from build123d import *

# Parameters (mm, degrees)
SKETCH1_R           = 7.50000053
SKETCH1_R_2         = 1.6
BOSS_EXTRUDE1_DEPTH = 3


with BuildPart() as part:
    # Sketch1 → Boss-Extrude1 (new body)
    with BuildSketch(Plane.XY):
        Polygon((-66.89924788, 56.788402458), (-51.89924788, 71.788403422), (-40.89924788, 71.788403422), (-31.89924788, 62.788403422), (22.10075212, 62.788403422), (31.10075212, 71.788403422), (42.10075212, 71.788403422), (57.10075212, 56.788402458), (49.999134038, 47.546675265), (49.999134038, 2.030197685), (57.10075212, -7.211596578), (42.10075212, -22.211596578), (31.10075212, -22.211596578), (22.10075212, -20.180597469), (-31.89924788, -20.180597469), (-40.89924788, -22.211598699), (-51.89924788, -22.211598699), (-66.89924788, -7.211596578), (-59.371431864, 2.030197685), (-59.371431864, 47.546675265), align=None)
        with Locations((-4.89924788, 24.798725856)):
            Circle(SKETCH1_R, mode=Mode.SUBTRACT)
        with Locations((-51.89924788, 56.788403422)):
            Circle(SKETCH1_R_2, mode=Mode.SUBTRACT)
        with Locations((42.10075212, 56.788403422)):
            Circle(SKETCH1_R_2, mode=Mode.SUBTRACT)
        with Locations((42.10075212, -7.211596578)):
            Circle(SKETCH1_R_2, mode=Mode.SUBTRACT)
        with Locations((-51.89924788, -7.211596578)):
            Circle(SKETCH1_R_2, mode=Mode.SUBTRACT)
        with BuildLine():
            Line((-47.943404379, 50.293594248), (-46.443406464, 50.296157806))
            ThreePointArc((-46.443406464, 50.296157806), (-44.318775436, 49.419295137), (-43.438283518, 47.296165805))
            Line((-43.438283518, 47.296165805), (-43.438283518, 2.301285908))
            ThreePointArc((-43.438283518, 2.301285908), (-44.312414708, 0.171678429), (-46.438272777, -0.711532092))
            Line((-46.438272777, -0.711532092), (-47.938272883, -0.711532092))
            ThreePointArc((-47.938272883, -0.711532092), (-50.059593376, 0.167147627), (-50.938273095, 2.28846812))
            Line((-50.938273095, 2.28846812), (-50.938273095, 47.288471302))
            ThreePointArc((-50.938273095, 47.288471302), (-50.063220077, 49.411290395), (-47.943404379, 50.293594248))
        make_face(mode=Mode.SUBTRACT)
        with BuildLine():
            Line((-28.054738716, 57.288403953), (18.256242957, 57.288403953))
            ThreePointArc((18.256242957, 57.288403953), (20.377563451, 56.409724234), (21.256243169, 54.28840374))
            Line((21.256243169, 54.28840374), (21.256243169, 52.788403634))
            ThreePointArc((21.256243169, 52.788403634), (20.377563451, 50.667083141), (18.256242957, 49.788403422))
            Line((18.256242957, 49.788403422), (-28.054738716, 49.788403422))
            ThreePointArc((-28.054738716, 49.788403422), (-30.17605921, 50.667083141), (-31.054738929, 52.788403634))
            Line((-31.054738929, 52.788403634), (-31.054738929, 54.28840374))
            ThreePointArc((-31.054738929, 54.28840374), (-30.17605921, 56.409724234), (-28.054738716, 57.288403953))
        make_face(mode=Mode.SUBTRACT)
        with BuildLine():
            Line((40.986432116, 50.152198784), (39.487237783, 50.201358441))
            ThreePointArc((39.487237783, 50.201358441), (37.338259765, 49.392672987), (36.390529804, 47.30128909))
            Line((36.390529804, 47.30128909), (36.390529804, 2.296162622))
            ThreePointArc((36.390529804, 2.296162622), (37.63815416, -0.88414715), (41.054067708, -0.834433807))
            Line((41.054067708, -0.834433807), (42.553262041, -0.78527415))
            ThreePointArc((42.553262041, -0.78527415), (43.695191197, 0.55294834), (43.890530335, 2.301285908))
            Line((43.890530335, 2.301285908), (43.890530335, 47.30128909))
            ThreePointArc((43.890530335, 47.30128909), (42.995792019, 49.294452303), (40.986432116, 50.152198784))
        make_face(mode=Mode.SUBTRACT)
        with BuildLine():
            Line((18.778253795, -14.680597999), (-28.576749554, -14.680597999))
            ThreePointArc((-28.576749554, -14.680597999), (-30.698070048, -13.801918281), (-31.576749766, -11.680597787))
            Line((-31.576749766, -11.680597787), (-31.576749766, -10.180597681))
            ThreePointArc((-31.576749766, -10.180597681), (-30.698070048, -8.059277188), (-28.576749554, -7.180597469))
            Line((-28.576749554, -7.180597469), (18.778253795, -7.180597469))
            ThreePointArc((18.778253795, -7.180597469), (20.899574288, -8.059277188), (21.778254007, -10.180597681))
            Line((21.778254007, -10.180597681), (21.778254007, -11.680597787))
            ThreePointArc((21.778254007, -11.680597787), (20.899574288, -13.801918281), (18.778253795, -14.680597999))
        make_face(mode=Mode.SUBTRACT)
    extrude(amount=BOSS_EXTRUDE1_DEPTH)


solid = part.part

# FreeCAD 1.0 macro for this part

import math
import FreeCAD as App
import Part
import Sketcher

V = App.Vector


def add_polygon(sketch, points):
    """Adds a closed chain of lines whose ends are joined by coincident constraints."""
    first, n = sketch.GeometryCount, len(points)
    for a, b in zip(points, points[1:] + points[:1]):
        sketch.addGeometry(Part.LineSegment(App.Vector(*a, 0), App.Vector(*b, 0)), False)
    for i in range(n):
        sketch.addConstraint(Sketcher.Constraint("Coincident", first + i, 2, first + (i + 1) % n, 1))

doc = App.newDocument("Part")
params = doc.addObject("Spreadsheet::Sheet", "Params")
for row, (alias, value) in enumerate([
    ("sketch1_diameter", "15.000001 mm"),
    ("sketch1_radius", "3 mm"),
    ("sketch1_diameter2", "3.2 mm"),
    ("sketch1_width", "11 mm"),
    ("sketch1_width2", "54 mm"),
    ("pad1_length", "3 mm"),
], start=1):
    params.set(f"A{row}", alias)
    params.set(f"B{row}", "=" + value)
    params.setAlias(f"B{row}", alias)

body = doc.addObject("PartDesign::Body", "Body")

# Sketch on XY plane
sketch1 = body.newObject("Sketcher::SketchObject", "Sketch")
sketch1.AttachmentSupport = (doc.getObject("XY_Plane"), [""])
sketch1.MapMode = "FlatFace"
add_polygon(sketch1, [(-51.9, 71.8), (-66.9, 56.8), (-59.4, 47.5), (-59.4, 2), (-66.9, -7.2), (-51.9, -22.2), (-40.9, -22.2), (-31.9, -20.2), (22.1, -20.2), (31.1, -22.2), (42.1, -22.2), (57.1, -7.2), (50, 2), (50, 47.5), (57.1, 56.8), (42.1, 71.8), (31.1, 71.8), (22.1, 62.8), (-31.9, 62.8), (-40.9, 71.8)])  # lines 0-19
sketch1.addGeometry(Part.Circle(V(42.1, -7.2, 0), V(0, 0, 1), 1.6), False)  # 20
sketch1.addGeometry(Part.LineSegment(V(18.8, -14.7, 0), V(-28.6, -14.7, 0)), False)  # 21
sketch1.addGeometry(Part.ArcOfCircle(Part.Circle(V(-28.6, -11.7, 0), V(0, 0, 1), 3), math.radians(180), math.radians(270)), False)  # 22
sketch1.addGeometry(Part.LineSegment(V(-31.6, -11.7, 0), V(-31.6, -10.2, 0)), False)  # 23
sketch1.addGeometry(Part.ArcOfCircle(Part.Circle(V(-28.6, -10.2, 0), V(0, 0, 1), 3), math.radians(90), math.radians(180)), False)  # 24
sketch1.addGeometry(Part.LineSegment(V(-28.6, -7.2, 0), V(18.8, -7.2, 0)), False)  # 25
sketch1.addGeometry(Part.ArcOfCircle(Part.Circle(V(18.8, -10.2, 0), V(0, 0, 1), 3), math.radians(0), math.radians(90)), False)  # 26
sketch1.addGeometry(Part.LineSegment(V(21.8, -10.2, 0), V(21.8, -11.7, 0)), False)  # 27
sketch1.addGeometry(Part.ArcOfCircle(Part.Circle(V(18.8, -11.7, 0), V(0, 0, 1), 3), math.radians(-90), math.radians(0)), False)  # 28
sketch1.addGeometry(Part.Circle(V(-51.9, -7.2, 0), V(0, 0, 1), 1.6), False)  # 29
sketch1.addGeometry(Part.ArcOfCircle(Part.Circle(V(40.9, 47.2, 0), V(0, 0, 1), 3), math.radians(3), math.radians(88)), False)  # 30
sketch1.addGeometry(Part.LineSegment(V(43.9, 47.3, 0), V(43.9, 2.3, 0)), False)  # 31
sketch1.addGeometry(Part.ArcOfCircle(Part.Circle(V(40.9, 1.7, 0), V(0, 0, 1), 3), math.radians(-58), math.radians(11)), False)  # 32
sketch1.addGeometry(Part.LineSegment(V(42.6, -0.8, 0), V(41.1, -0.8, 0)), False)  # 33
sketch1.addGeometry(Part.ArcOfCircle(Part.Circle(V(39.3, 1.6, 0), V(0, 0, 1), 3), math.radians(167), math.radians(306)), False)  # 34
sketch1.addGeometry(Part.LineSegment(V(36.4, 2.3, 0), V(36.4, 47.3, 0)), False)  # 35
sketch1.addGeometry(Part.ArcOfCircle(Part.Circle(V(39.4, 47.2, 0), V(0, 0, 1), 3), math.radians(88), math.radians(178)), False)  # 36
sketch1.addGeometry(Part.LineSegment(V(39.5, 50.2, 0), V(41, 50.2, 0)), False)  # 37
sketch1.addGeometry(Part.Circle(V(42.1, 56.8, 0), V(0, 0, 1), 1.6), False)  # 38
sketch1.addGeometry(Part.Circle(V(-4.9, 24.8, 0), V(0, 0, 1), 7.5), False)  # 39
sketch1.addGeometry(Part.LineSegment(V(-47.9, 50.3, 0), V(-46.4, 50.3, 0)), False)  # 40
sketch1.addGeometry(Part.ArcOfCircle(Part.Circle(V(-46.4, 47.3, 0), V(0, 0, 1), 3), math.radians(0), math.radians(90)), False)  # 41
sketch1.addGeometry(Part.LineSegment(V(-43.4, 47.3, 0), V(-43.4, 2.3, 0)), False)  # 42
sketch1.addGeometry(Part.ArcOfCircle(Part.Circle(V(-46.4, 2.3, 0), V(0, 0, 1), 3), math.radians(-90), math.radians(0)), False)  # 43
sketch1.addGeometry(Part.LineSegment(V(-46.4, -0.7, 0), V(-47.9, -0.7, 0)), False)  # 44
sketch1.addGeometry(Part.ArcOfCircle(Part.Circle(V(-47.9, 2.3, 0), V(0, 0, 1), 3), math.radians(-180), math.radians(-90)), False)  # 45
sketch1.addGeometry(Part.LineSegment(V(-50.9, 2.3, 0), V(-50.9, 47.3, 0)), False)  # 46
sketch1.addGeometry(Part.ArcOfCircle(Part.Circle(V(-47.9, 47.3, 0), V(0, 0, 1), 3), math.radians(90), math.radians(180)), False)  # 47
sketch1.addGeometry(Part.LineSegment(V(-28.1, 57.3, 0), V(18.3, 57.3, 0)), False)  # 48
sketch1.addGeometry(Part.ArcOfCircle(Part.Circle(V(18.3, 54.3, 0), V(0, 0, 1), 3), math.radians(0), math.radians(90)), False)  # 49
sketch1.addGeometry(Part.LineSegment(V(21.3, 54.3, 0), V(21.3, 52.8, 0)), False)  # 50
sketch1.addGeometry(Part.ArcOfCircle(Part.Circle(V(18.3, 52.8, 0), V(0, 0, 1), 3), math.radians(-90), math.radians(0)), False)  # 51
sketch1.addGeometry(Part.LineSegment(V(18.3, 49.8, 0), V(-28.1, 49.8, 0)), False)  # 52
sketch1.addGeometry(Part.ArcOfCircle(Part.Circle(V(-28.1, 52.8, 0), V(0, 0, 1), 3), math.radians(-180), math.radians(-90)), False)  # 53
sketch1.addGeometry(Part.LineSegment(V(-31.1, 52.8, 0), V(-31.1, 54.3, 0)), False)  # 54
sketch1.addGeometry(Part.ArcOfCircle(Part.Circle(V(-28.1, 54.3, 0), V(0, 0, 1), 3), math.radians(90), math.radians(180)), False)  # 55
sketch1.addGeometry(Part.Circle(V(-51.9, 56.8, 0), V(0, 0, 1), 1.6), False)  # 56
sketch1.addConstraint(Sketcher.Constraint("Tangent", 21, 2, 22, 2))
sketch1.addConstraint(Sketcher.Constraint("Tangent", 22, 1, 23, 1))
sketch1.addConstraint(Sketcher.Constraint("Tangent", 23, 2, 24, 2))
sketch1.addConstraint(Sketcher.Constraint("Tangent", 24, 1, 25, 1))
sketch1.addConstraint(Sketcher.Constraint("Tangent", 25, 2, 26, 2))
sketch1.addConstraint(Sketcher.Constraint("Tangent", 26, 1, 27, 1))
sketch1.addConstraint(Sketcher.Constraint("Tangent", 27, 2, 28, 2))
sketch1.addConstraint(Sketcher.Constraint("Tangent", 28, 1, 21, 1))
sketch1.addConstraint(Sketcher.Constraint("Coincident", 30, 1, 31, 1))
sketch1.addConstraint(Sketcher.Constraint("Coincident", 31, 2, 32, 2))
sketch1.addConstraint(Sketcher.Constraint("Coincident", 32, 1, 33, 1))
sketch1.addConstraint(Sketcher.Constraint("Coincident", 33, 2, 34, 2))
sketch1.addConstraint(Sketcher.Constraint("Coincident", 34, 1, 35, 1))
sketch1.addConstraint(Sketcher.Constraint("Coincident", 35, 2, 36, 2))
sketch1.addConstraint(Sketcher.Constraint("Tangent", 36, 1, 37, 1))
sketch1.addConstraint(Sketcher.Constraint("Coincident", 37, 2, 30, 2))
sketch1.addConstraint(Sketcher.Constraint("Tangent", 40, 2, 41, 2))
sketch1.addConstraint(Sketcher.Constraint("Tangent", 41, 1, 42, 1))
sketch1.addConstraint(Sketcher.Constraint("Coincident", 42, 2, 43, 2))
sketch1.addConstraint(Sketcher.Constraint("Coincident", 43, 1, 44, 1))
sketch1.addConstraint(Sketcher.Constraint("Tangent", 44, 2, 45, 2))
sketch1.addConstraint(Sketcher.Constraint("Tangent", 45, 1, 46, 1))
sketch1.addConstraint(Sketcher.Constraint("Coincident", 46, 2, 47, 2))
sketch1.addConstraint(Sketcher.Constraint("Tangent", 47, 1, 40, 1))
sketch1.addConstraint(Sketcher.Constraint("Tangent", 48, 2, 49, 2))
sketch1.addConstraint(Sketcher.Constraint("Tangent", 49, 1, 50, 1))
sketch1.addConstraint(Sketcher.Constraint("Tangent", 50, 2, 51, 2))
sketch1.addConstraint(Sketcher.Constraint("Tangent", 51, 1, 52, 1))
sketch1.addConstraint(Sketcher.Constraint("Tangent", 52, 2, 53, 2))
sketch1.addConstraint(Sketcher.Constraint("Tangent", 53, 1, 54, 1))
sketch1.addConstraint(Sketcher.Constraint("Tangent", 54, 2, 55, 2))
sketch1.addConstraint(Sketcher.Constraint("Tangent", 55, 1, 48, 1))
sketch1.addConstraint(Sketcher.Constraint("Vertical", 2))
sketch1.addConstraint(Sketcher.Constraint("Horizontal", 5))
sketch1.addConstraint(Sketcher.Constraint("Horizontal", 7))
sketch1.addConstraint(Sketcher.Constraint("Horizontal", 9))
sketch1.addConstraint(Sketcher.Constraint("Vertical", 12))
sketch1.addConstraint(Sketcher.Constraint("Horizontal", 15))
sketch1.addConstraint(Sketcher.Constraint("Horizontal", 17))
sketch1.addConstraint(Sketcher.Constraint("Horizontal", 19))
sketch1.addConstraint(Sketcher.Constraint("Horizontal", 21))
sketch1.addConstraint(Sketcher.Constraint("Vertical", 23))
sketch1.addConstraint(Sketcher.Constraint("Horizontal", 25))
sketch1.addConstraint(Sketcher.Constraint("Vertical", 27))
sketch1.addConstraint(Sketcher.Constraint("Vertical", 31))
sketch1.addConstraint(Sketcher.Constraint("Vertical", 35))
sketch1.addConstraint(Sketcher.Constraint("Vertical", 42))
sketch1.addConstraint(Sketcher.Constraint("Horizontal", 44))
sketch1.addConstraint(Sketcher.Constraint("Vertical", 46))
sketch1.addConstraint(Sketcher.Constraint("Horizontal", 48))
sketch1.addConstraint(Sketcher.Constraint("Vertical", 50))
sketch1.addConstraint(Sketcher.Constraint("Horizontal", 52))
sketch1.addConstraint(Sketcher.Constraint("Vertical", 54))
sketch1.addConstraint(Sketcher.Constraint("Equal", 22, 24))
sketch1.addConstraint(Sketcher.Constraint("Equal", 24, 26))
sketch1.addConstraint(Sketcher.Constraint("Equal", 26, 28))
sketch1.addConstraint(Sketcher.Constraint("Equal", 20, 29))
sketch1.addConstraint(Sketcher.Constraint("Equal", 28, 30))
sketch1.addConstraint(Sketcher.Constraint("Equal", 30, 32))
sketch1.addConstraint(Sketcher.Constraint("Equal", 32, 34))
sketch1.addConstraint(Sketcher.Constraint("Equal", 34, 36))
sketch1.addConstraint(Sketcher.Constraint("Equal", 29, 38))
sketch1.addConstraint(Sketcher.Constraint("Equal", 36, 43))
sketch1.addConstraint(Sketcher.Constraint("Equal", 43, 45))
sketch1.addConstraint(Sketcher.Constraint("Equal", 45, 47))
sketch1.addConstraint(Sketcher.Constraint("Equal", 47, 49))
sketch1.addConstraint(Sketcher.Constraint("Equal", 49, 51))
sketch1.addConstraint(Sketcher.Constraint("Equal", 51, 53))
sketch1.addConstraint(Sketcher.Constraint("Equal", 53, 55))
sketch1.addConstraint(Sketcher.Constraint("Equal", 38, 56))
sketch1.addConstraint(Sketcher.Constraint("Perpendicular", 0, 4))
sketch1.addConstraint(Sketcher.Constraint("Perpendicular", 4, 10))
sketch1.addConstraint(Sketcher.Constraint("Perpendicular", 10, 14))
sketch1.addConstraint(Sketcher.Constraint("Perpendicular", 14, 16))
sketch1.addConstraint(Sketcher.Constraint("Perpendicular", 16, 18))
sketch1.addConstraint(Sketcher.Constraint("Horizontal", 20, 3, 29, 3))
sketch1.addConstraint(Sketcher.Constraint("Horizontal", 38, 3, 56, 3))
sketch1.addConstraint(Sketcher.Constraint("Horizontal", 56, 3, 0, 2))
sketch1.addConstraint(Sketcher.Constraint("Horizontal", 29, 3, 3, 2))
sketch1.addConstraint(Sketcher.Constraint("Horizontal", 3, 2, 10, 2))
sketch1.addConstraint(Sketcher.Constraint("Horizontal", 2, 2, 11, 2))
sketch1.addConstraint(Sketcher.Constraint("Horizontal", 1, 2, 12, 2))
sketch1.addConstraint(Sketcher.Constraint("Horizontal", 0, 2, 13, 2))
sketch1.addConstraint(Sketcher.Constraint("Horizontal", 15, 2, 18, 2))
sketch1.addConstraint(Sketcher.Constraint("Horizontal", 30, 1, 35, 2))
sketch1.addConstraint(Sketcher.Constraint("Horizontal", 31, 2, 42, 2))
sketch1.addConstraint(Sketcher.Constraint("Vertical", 20, 3, 38, 3))
sketch1.addConstraint(Sketcher.Constraint("Vertical", 29, 3, 56, 3))
sketch1.addConstraint(Sketcher.Constraint("Vertical", 0, 2, 3, 2))
sketch1.addConstraint(Sketcher.Constraint("Vertical", 56, 3, 4, 2))
sketch1.addConstraint(Sketcher.Constraint("Vertical", 38, 3, 9, 2))
sketch1.addConstraint(Sketcher.Constraint("Vertical", 10, 2, 13, 2))
sketch1.addConstraint(Sketcher.Constraint("Vertical", 9, 2, 14, 2))
sketch1.addConstraint(Sketcher.Constraint("Vertical", 8, 2, 15, 2))
sketch1.addConstraint(Sketcher.Constraint("Vertical", 7, 2, 16, 2))
sketch1.addConstraint(Sketcher.Constraint("Vertical", 6, 2, 17, 2))
sketch1.addConstraint(Sketcher.Constraint("Vertical", 5, 2, 18, 2))
sketch1.addConstraint(Sketcher.Constraint("Vertical", 4, 2, 19, 2))
sketch1.addConstraint(Sketcher.Constraint("Equal", 5, 9))
sketch1.addConstraint(Sketcher.Constraint("Equal", 44, 23))
sketch1.addConstraint(Sketcher.Constraint("Equal", 31, 46))
sketch1.addConstraint(Sketcher.Constraint("Equal", 27, 50))
sketch1.addConstraint(Sketcher.Constraint("Equal", 0, 4))
sketch1.addConstraint(Sketcher.Constraint("Equal", 33, 37))
sketch1.addConstraint(Sketcher.Constraint("Equal", 37, 40))
sketch1.addConstraint(Sketcher.Constraint("Diameter", 39, 15.000001))
sketch1.addConstraint(Sketcher.Constraint("Radius", 22, 3.0))
sketch1.addConstraint(Sketcher.Constraint("Diameter", 20, 3.2))
sketch1.addConstraint(Sketcher.Constraint("DistanceX", 5, 1, 5, 2, 11.0))
sketch1.addConstraint(Sketcher.Constraint("DistanceX", 7, 1, 7, 2, 54.0))
sketch1.addConstraint(Sketcher.Constraint("DistanceX", 44, 2, 44, 1, 1.5))
sketch1.addConstraint(Sketcher.Constraint("Distance", 33, 1.5))
sketch1.addConstraint(Sketcher.Constraint("Radius", 41, 2.999997))
sketch1.addConstraint(Sketcher.Constraint("DistanceX", 48, 1, 48, 2, 46.310982))
sketch1.addConstraint(Sketcher.Constraint("DistanceY", 42, 2, 42, 1, 44.99488))
sketch1.addConstraint(Sketcher.Constraint("DistanceY", -1, 1, 47, 3, 47.293598))
sketch1.addConstraint(Sketcher.Constraint("DistanceY", 4, 2, -1, 1, 22.211599))
sketch1.addConstraint(Sketcher.Constraint("DistanceY", -1, 1, 37, 2, 50.152199))
sketch1.addConstraint(Sketcher.Constraint("Distance", 1, 11.919628))
sketch1.addConstraint(Sketcher.Constraint("Distance", 3, 11.91968))
sketch1.addConstraint(Sketcher.Constraint("Distance", 6, 9.226319))
sketch1.addConstraint(Sketcher.Constraint("Distance", 13, 11.655149))
sketch1.addConstraint(Sketcher.Constraint("DistanceX", 21, 2, 21, 1, 47.355003))
sketch1.addConstraint(Sketcher.Constraint("DistanceY", 2, 2, 2, 1, 45.516478))
sketch1.addConstraint(Sketcher.Constraint("DistanceY", 31, 2, 31, 1, 45.000003))
sketch1.addConstraint(Sketcher.Constraint("DistanceY", 35, 1, 35, 2, 45.005126))
sketch1.addConstraint(Sketcher.Constraint("DistanceX", 22, 3, -1, 1, 28.57675))
sketch1.addConstraint(Sketcher.Constraint("DistanceY", -1, 1, 32, 3, 1.74559))
sketch1.addConstraint(Sketcher.Constraint("DistanceX", -1, 1, 36, 3, 39.388918))
sketch1.addConstraint(Sketcher.Constraint("DistanceY", -1, 1, 36, 3, 47.20297))
sketch1.addConstraint(Sketcher.Constraint("DistanceX", 41, 3, -1, 1, 46.43828))
sketch1.addConstraint(Sketcher.Constraint("DistanceY", -1, 1, 43, 3, 2.288468))
sketch1.addConstraint(Sketcher.Constraint("DistanceX", 53, 3, -1, 1, 28.054739))
sketch1.addConstraint(Sketcher.Constraint("DistanceX", 1, 2, -1, 1, 59.371432))
sketch1.addConstraint(Sketcher.Constraint("DistanceX", -1, 1, 30, 1, 43.89053))
sketch1.addConstraint(Sketcher.Constraint("DistanceY", -1, 1, 30, 1, 47.301289))
sketch1.addConstraint(Sketcher.Constraint("Distance", 0, 21.213204))
sketch1.addConstraint(Sketcher.Constraint("Distance", 16, 12.727922))
sketch1.addConstraint(Sketcher.Constraint("DistanceX", -1, 1, 20, 3, 42.100752))
sketch1.addConstraint(Sketcher.Constraint("DistanceY", 22, 3, -1, 1, 11.680598))
sketch1.addConstraint(Sketcher.Constraint("DistanceX", -1, 1, 34, 3, 39.310223))
sketch1.addConstraint(Sketcher.Constraint("DistanceX", 39, 3, -1, 1, 4.899248))
sketch1.addConstraint(Sketcher.Constraint("DistanceY", -1, 1, 39, 3, 24.798726))
sketch1.addConstraint(Sketcher.Constraint("DistanceY", -1, 1, 49, 3, 54.288404))
sketch1.addConstraint(Sketcher.Constraint("DistanceX", -1, 1, 32, 1, 42.553262))
sketch1.setExpression("Constraints[125]", "Params.sketch1_diameter")
sketch1.setExpression("Constraints[126]", "Params.sketch1_radius")
sketch1.setExpression("Constraints[127]", "Params.sketch1_diameter2")
sketch1.setExpression("Constraints[128]", "Params.sketch1_width")
sketch1.setExpression("Constraints[129]", "Params.sketch1_width2")
pad1 = body.newObject("PartDesign::Pad", "Pad")
pad1.Profile = sketch1
pad1.setExpression("Length", "Params.pad1_length")

doc.recompute()
